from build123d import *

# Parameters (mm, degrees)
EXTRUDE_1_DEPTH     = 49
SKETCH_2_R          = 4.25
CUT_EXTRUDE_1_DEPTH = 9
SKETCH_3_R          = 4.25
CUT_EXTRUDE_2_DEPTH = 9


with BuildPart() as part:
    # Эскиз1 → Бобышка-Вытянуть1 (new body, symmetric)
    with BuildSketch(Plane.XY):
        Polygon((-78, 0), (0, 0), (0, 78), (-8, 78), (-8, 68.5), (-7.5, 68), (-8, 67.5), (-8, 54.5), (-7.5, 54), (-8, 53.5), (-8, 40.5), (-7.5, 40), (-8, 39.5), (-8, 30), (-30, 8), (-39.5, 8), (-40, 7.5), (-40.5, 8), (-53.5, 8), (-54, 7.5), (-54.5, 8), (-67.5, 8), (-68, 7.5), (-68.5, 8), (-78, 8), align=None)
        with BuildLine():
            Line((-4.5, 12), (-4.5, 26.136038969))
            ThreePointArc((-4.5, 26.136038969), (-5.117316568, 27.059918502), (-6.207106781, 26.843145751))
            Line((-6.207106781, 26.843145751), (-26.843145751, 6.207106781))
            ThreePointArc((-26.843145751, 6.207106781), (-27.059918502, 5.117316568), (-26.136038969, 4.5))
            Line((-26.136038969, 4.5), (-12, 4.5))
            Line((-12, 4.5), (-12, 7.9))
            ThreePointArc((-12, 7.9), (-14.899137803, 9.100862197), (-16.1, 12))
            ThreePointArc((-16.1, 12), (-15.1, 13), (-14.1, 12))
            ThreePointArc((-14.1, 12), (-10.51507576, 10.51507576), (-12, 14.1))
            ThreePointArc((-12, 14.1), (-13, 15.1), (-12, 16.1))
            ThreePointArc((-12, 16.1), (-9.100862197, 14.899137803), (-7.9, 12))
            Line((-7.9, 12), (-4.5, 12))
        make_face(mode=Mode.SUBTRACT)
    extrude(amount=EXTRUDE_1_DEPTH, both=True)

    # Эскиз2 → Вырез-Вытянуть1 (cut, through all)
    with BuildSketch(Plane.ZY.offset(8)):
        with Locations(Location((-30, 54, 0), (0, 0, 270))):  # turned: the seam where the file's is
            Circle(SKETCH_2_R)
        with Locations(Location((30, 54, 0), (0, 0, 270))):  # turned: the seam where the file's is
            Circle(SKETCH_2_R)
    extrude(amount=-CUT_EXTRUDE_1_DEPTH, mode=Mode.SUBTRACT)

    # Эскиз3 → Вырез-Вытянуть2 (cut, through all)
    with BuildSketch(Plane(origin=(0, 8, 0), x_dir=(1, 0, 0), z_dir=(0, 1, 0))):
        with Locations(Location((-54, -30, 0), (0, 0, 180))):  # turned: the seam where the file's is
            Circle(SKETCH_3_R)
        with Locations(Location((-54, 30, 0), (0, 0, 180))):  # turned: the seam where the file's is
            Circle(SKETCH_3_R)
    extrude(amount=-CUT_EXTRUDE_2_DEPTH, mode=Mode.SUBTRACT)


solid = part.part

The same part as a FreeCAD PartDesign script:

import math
import FreeCAD as App
import Part
import Sketcher

V = App.Vector
Q = App.Units.Quantity

doc = App.newDocument("Part")
body = doc.addObject("PartDesign::Body", "Body")

sketch1 = doc.addObject("Sketcher::SketchObject", "Sketch")
body.addObject(sketch1)
sketch1.AttachmentSupport = (doc.XY_Plane, [""])
sketch1.MapMode = "FlatFace"
sketch1.addGeometry([
    Part.LineSegment(V(-78, 0, 0), V(0, 0, 0)),
    Part.LineSegment(V(0, 0, 0), V(0, 78, 0)),
    Part.LineSegment(V(0, 78, 0), V(-8, 78, 0)),
    Part.LineSegment(V(-8, 78, 0), V(-8, 68.5, 0)),
    Part.LineSegment(V(-8, 68.5, 0), V(-7.5, 68, 0)),
    Part.LineSegment(V(-7.5, 68, 0), V(-8, 67.5, 0)),
    Part.LineSegment(V(-8, 67.5, 0), V(-8, 54.5, 0)),
    Part.LineSegment(V(-8, 54.5, 0), V(-7.5, 54, 0)),
    Part.LineSegment(V(-7.5, 54, 0), V(-8, 53.5, 0)),
    Part.LineSegment(V(-8, 53.5, 0), V(-8, 40.5, 0)),
    Part.LineSegment(V(-8, 40.5, 0), V(-7.5, 40, 0)),
    Part.LineSegment(V(-7.5, 40, 0), V(-8, 39.5, 0)),
    Part.LineSegment(V(-8, 39.5, 0), V(-8, 30, 0)),
    Part.LineSegment(V(-8, 30, 0), V(-30, 8, 0)),
    Part.LineSegment(V(-30, 8, 0), V(-39.5, 8, 0)),
    Part.LineSegment(V(-39.5, 8, 0), V(-40, 7.5, 0)),
    Part.LineSegment(V(-40, 7.5, 0), V(-40.5, 8, 0)),
    Part.LineSegment(V(-40.5, 8, 0), V(-53.5, 8, 0)),
    Part.LineSegment(V(-53.5, 8, 0), V(-54, 7.5, 0)),
    Part.LineSegment(V(-54, 7.5, 0), V(-54.5, 8, 0)),
    Part.LineSegment(V(-54.5, 8, 0), V(-67.5, 8, 0)),
    Part.LineSegment(V(-67.5, 8, 0), V(-68, 7.5, 0)),
    Part.LineSegment(V(-68, 7.5, 0), V(-68.5, 8, 0)),
    Part.LineSegment(V(-68.5, 8, 0), V(-78, 8, 0)),
    Part.LineSegment(V(-78, 8, 0), V(-78, 0, 0)),
    Part.LineSegment(V(-4.5, 26.136039, 0), V(-4.5, 12, 0)),
    Part.LineSegment(V(-4.5, 12, 0), V(-7.9, 12, 0)),
    Part.ArcOfCircle(Part.Circle(V(-12, 12, 0), V(0, 0, 1), 4.1), math.radians(0), math.radians(90)),
    Part.ArcOfCircle(Part.Circle(V(-12, 15.1, 0), V(0, 0, 1), 1), math.radians(90), math.radians(270)),
    Part.ArcOfCircle(Part.Circle(V(-12, 12, 0), V(0, 0, 1), 2.1), math.radians(180), math.radians(450)),
    Part.ArcOfCircle(Part.Circle(V(-15.1, 12, 0), V(0, 0, 1), 1), math.radians(0), math.radians(180)),
    Part.ArcOfCircle(Part.Circle(V(-12, 12, 0), V(0, 0, 1), 4.1), math.radians(180), math.radians(270)),
    Part.LineSegment(V(-12, 7.9, 0), V(-12, 4.5, 0)),
    Part.LineSegment(V(-12, 4.5, 0), V(-26.136039, 4.5, 0)),
    Part.ArcOfCircle(Part.Circle(V(-26.136039, 5.5, 0), V(0, 0, 1), 1), math.radians(135), math.radians(270)),
    Part.LineSegment(V(-26.843146, 6.207107, 0), V(-6.207107, 26.843146, 0)),
    Part.ArcOfCircle(Part.Circle(V(-5.5, 26.136039, 0), V(0, 0, 1), 1), math.radians(0), math.radians(135)),
], False)
sketch1.addConstraint([
    Sketcher.Constraint("Coincident", 0, 2, 1, 1),
    Sketcher.Constraint("Coincident", 1, 2, 2, 1),
    Sketcher.Constraint("Coincident", 2, 2, 3, 1),
    Sketcher.Constraint("Coincident", 3, 2, 4, 1),
    Sketcher.Constraint("Coincident", 4, 2, 5, 1),
    Sketcher.Constraint("Coincident", 5, 2, 6, 1),
    Sketcher.Constraint("Coincident", 6, 2, 7, 1),
    Sketcher.Constraint("Coincident", 7, 2, 8, 1),
    Sketcher.Constraint("Coincident", 8, 2, 9, 1),
    Sketcher.Constraint("Coincident", 9, 2, 10, 1),
    Sketcher.Constraint("Coincident", 10, 2, 11, 1),
    Sketcher.Constraint("Coincident", 11, 2, 12, 1),
    Sketcher.Constraint("Coincident", 12, 2, 13, 1),
    Sketcher.Constraint("Coincident", 13, 2, 14, 1),
    Sketcher.Constraint("Coincident", 14, 2, 15, 1),
    Sketcher.Constraint("Coincident", 15, 2, 16, 1),
    Sketcher.Constraint("Coincident", 16, 2, 17, 1),
    Sketcher.Constraint("Coincident", 17, 2, 18, 1),
    Sketcher.Constraint("Coincident", 18, 2, 19, 1),
    Sketcher.Constraint("Coincident", 19, 2, 20, 1),
    Sketcher.Constraint("Coincident", 20, 2, 21, 1),
    Sketcher.Constraint("Coincident", 21, 2, 22, 1),
    Sketcher.Constraint("Coincident", 22, 2, 23, 1),
    Sketcher.Constraint("Coincident", 23, 2, 24, 1),
    Sketcher.Constraint("Coincident", 24, 2, 0, 1),
    Sketcher.Constraint("Coincident", 25, 2, 26, 1),
    Sketcher.Constraint("Coincident", 26, 2, 27, 1),
    Sketcher.Constraint("Tangent", 27, 2, 28, 1),
    Sketcher.Constraint("Tangent", 28, 2, 29, 2),
    Sketcher.Constraint("Tangent", 29, 1, 30, 1),
    Sketcher.Constraint("Tangent", 30, 2, 31, 1),
    Sketcher.Constraint("Coincident", 31, 2, 32, 1),
    Sketcher.Constraint("Coincident", 32, 2, 33, 1),
    Sketcher.Constraint("Tangent", 33, 2, 34, 2),
    Sketcher.Constraint("Tangent", 34, 1, 35, 1),
    Sketcher.Constraint("Tangent", 35, 2, 36, 2),
    Sketcher.Constraint("Tangent", 36, 1, 25, 1),
    Sketcher.Constraint("Horizontal", 0),
    Sketcher.Constraint("Vertical", 1),
    Sketcher.Constraint("Horizontal", 2),
    Sketcher.Constraint("Vertical", 3),
    Sketcher.Constraint("Vertical", 6),
    Sketcher.Constraint("Vertical", 9),
    Sketcher.Constraint("Vertical", 12),
    Sketcher.Constraint("Horizontal", 14),
    Sketcher.Constraint("Horizontal", 17),
    Sketcher.Constraint("Horizontal", 20),
    Sketcher.Constraint("Horizontal", 23),
    Sketcher.Constraint("Vertical", 24),
    Sketcher.Constraint("Vertical", 25),
    Sketcher.Constraint("Horizontal", 26),
    Sketcher.Constraint("Vertical", 32),
    Sketcher.Constraint("Horizontal", 33),
    Sketcher.Constraint("Coincident", 0, 2, -1, 1),
    Sketcher.Constraint("Coincident", 29, 3, 27, 3),
    Sketcher.Constraint("Coincident", 31, 3, 27, 3),
    Sketcher.Constraint("Equal", 28, 30),
    Sketcher.Constraint("Equal", 30, 34),
    Sketcher.Constraint("Equal", 34, 36),
    Sketcher.Constraint("Perpendicular", 4, 5),
    Sketcher.Constraint("Perpendicular", 5, 7),
    Sketcher.Constraint("Perpendicular", 7, 8),
    Sketcher.Constraint("Perpendicular", 8, 10),
    Sketcher.Constraint("Perpendicular", 10, 11),
    Sketcher.Constraint("Parallel", 11, 13),
    Sketcher.Constraint("Parallel", 13, 15),
    Sketcher.Constraint("Perpendicular", 15, 16),
    Sketcher.Constraint("Perpendicular", 16, 18),
    Sketcher.Constraint("Perpendicular", 18, 19),
    Sketcher.Constraint("Perpendicular", 19, 21),
    Sketcher.Constraint("Perpendicular", 21, 22),
    Sketcher.Constraint("Perpendicular", 22, 35),
    Sketcher.Constraint("Horizontal", 29, 3, 30, 3),
    Sketcher.Constraint("Horizontal", 14, 2, 16, 2),
    Sketcher.Constraint("Horizontal", 15, 2, 18, 2),
    Sketcher.Constraint("Horizontal", 17, 2, 19, 2),
    Sketcher.Constraint("Horizontal", 18, 2, 21, 2),
    Sketcher.Constraint("Horizontal", 20, 2, 22, 2),
    Sketcher.Constraint("Horizontal", 31, 3, 25, 2),
    Sketcher.Constraint("Vertical", 27, 3, 28, 3),
    Sketcher.Constraint("Vertical", 3, 2, 5, 2),
    Sketcher.Constraint("Vertical", 4, 2, 7, 2),
    Sketcher.Constraint("Vertical", 6, 2, 8, 2),
    Sketcher.Constraint("Vertical", 7, 2, 10, 2),
    Sketcher.Constraint("Vertical", 9, 2, 11, 2),
    Sketcher.Constraint("Vertical", 28, 2, 31, 2),
    Sketcher.Constraint("Equal", 17, 20),
    Sketcher.Constraint("Equal", 14, 23),
    Sketcher.Constraint("Equal", 0, 1),
    Sketcher.Constraint("Equal", 23, 3),
    Sketcher.Constraint("Equal", 20, 6),
    Sketcher.Constraint("Equal", 6, 9),
    Sketcher.Constraint("Equal", 3, 12),
    Sketcher.Constraint("Equal", 2, 24),
    Sketcher.Constraint("Equal", 33, 25),
    Sketcher.Constraint("Equal", 26, 32),
    Sketcher.Constraint("Radius", 28, Q("1 mm")),
    Sketcher.Constraint("Radius", 27, Q("4.1 mm")),
    Sketcher.Constraint("DistanceX", 0, 1, 0, 2, Q("78 mm")),
    Sketcher.Constraint("DistanceX", 2, 2, 2, 1, Q("8 mm")),
    Sketcher.Constraint("DistanceX", 17, 2, 17, 1, Q("13 mm")),
    Sketcher.Constraint("DistanceX", 14, 2, 14, 1, Q("9.5 mm")),
    Sketcher.Constraint("DistanceX", 26, 2, 26, 1, Q("3.4 mm")),
    Sketcher.Constraint("DistanceX", 27, 3, -1, 1, Q("12 mm")),
    Sketcher.Constraint("DistanceY", -1, 1, 27, 3, Q("12 mm")),
    Sketcher.Constraint("DistanceY", -1, 1, 4, 2, Q("68 mm")),
    Sketcher.Constraint("DistanceX", 33, 2, 33, 1, Q("14.136039 mm")),
])
pad1 = doc.addObject("PartDesign::Pad", "Pad")
body.addObject(pad1)
pad1.Profile = sketch1
pad1.Length = 98
pad1.Midplane = True

sketch2 = doc.addObject("Sketcher::SketchObject", "Sketch001")
body.addObject(sketch2)
sketch2.AttachmentSupport = (doc.YZ_Plane, [""])
sketch2.MapMode = "FlatFace"
sketch2.AttachmentOffset = App.Placement(V(0, 0, -8), App.Rotation())
sketch2.addGeometry([
    Part.Circle(V(54, -30, 0), V(0, 0, 1), 4.25),
    Part.Circle(V(54, 30, 0), V(0, 0, 1), 4.25),
], False)
sketch2.addConstraint([
    Sketcher.Constraint("Equal", 0, 1),
    Sketcher.Constraint("Symmetric", 0, 3, 1, 3, -1),
    Sketcher.Constraint("Diameter", 0, Q("8.5 mm")),
    Sketcher.Constraint("DistanceX", -1, 1, 0, 3, Q("54 mm")),
    Sketcher.Constraint("DistanceY", 0, 3, -1, 1, Q("30 mm")),
])
pocket1 = doc.addObject("PartDesign::Pocket", "Pocket")
body.addObject(pocket1)
pocket1.Profile = sketch2
pocket1.Type = "ThroughAll"
pocket1.Reversed = True

sketch3 = doc.addObject("Sketcher::SketchObject", "Sketch002")
body.addObject(sketch3)
sketch3.AttachmentSupport = (doc.XZ_Plane, [""])
sketch3.MapMode = "FlatFace"
sketch3.AttachmentOffset = App.Placement(V(0, 0, -8), App.Rotation())
sketch3.addGeometry([
    Part.Circle(V(-54, 30, 0), V(0, 0, 1), 4.25),
    Part.Circle(V(-54, -30, 0), V(0, 0, 1), 4.25),
], False)
sketch3.addConstraint([
    Sketcher.Constraint("Equal", 0, 1),
    Sketcher.Constraint("Symmetric", 0, 3, 1, 3, -1),
    Sketcher.Constraint("Diameter", 0, Q("8.5 mm")),
    Sketcher.Constraint("DistanceX", 0, 3, -1, 1, Q("54 mm")),
    Sketcher.Constraint("DistanceY", -1, 1, 0, 3, Q("30 mm")),
])
pocket2 = doc.addObject("PartDesign::Pocket", "Pocket001")
body.addObject(pocket2)
pocket2.Profile = sketch3
pocket2.Type = "ThroughAll"
pocket2.Reversed = True

doc.recompute()
